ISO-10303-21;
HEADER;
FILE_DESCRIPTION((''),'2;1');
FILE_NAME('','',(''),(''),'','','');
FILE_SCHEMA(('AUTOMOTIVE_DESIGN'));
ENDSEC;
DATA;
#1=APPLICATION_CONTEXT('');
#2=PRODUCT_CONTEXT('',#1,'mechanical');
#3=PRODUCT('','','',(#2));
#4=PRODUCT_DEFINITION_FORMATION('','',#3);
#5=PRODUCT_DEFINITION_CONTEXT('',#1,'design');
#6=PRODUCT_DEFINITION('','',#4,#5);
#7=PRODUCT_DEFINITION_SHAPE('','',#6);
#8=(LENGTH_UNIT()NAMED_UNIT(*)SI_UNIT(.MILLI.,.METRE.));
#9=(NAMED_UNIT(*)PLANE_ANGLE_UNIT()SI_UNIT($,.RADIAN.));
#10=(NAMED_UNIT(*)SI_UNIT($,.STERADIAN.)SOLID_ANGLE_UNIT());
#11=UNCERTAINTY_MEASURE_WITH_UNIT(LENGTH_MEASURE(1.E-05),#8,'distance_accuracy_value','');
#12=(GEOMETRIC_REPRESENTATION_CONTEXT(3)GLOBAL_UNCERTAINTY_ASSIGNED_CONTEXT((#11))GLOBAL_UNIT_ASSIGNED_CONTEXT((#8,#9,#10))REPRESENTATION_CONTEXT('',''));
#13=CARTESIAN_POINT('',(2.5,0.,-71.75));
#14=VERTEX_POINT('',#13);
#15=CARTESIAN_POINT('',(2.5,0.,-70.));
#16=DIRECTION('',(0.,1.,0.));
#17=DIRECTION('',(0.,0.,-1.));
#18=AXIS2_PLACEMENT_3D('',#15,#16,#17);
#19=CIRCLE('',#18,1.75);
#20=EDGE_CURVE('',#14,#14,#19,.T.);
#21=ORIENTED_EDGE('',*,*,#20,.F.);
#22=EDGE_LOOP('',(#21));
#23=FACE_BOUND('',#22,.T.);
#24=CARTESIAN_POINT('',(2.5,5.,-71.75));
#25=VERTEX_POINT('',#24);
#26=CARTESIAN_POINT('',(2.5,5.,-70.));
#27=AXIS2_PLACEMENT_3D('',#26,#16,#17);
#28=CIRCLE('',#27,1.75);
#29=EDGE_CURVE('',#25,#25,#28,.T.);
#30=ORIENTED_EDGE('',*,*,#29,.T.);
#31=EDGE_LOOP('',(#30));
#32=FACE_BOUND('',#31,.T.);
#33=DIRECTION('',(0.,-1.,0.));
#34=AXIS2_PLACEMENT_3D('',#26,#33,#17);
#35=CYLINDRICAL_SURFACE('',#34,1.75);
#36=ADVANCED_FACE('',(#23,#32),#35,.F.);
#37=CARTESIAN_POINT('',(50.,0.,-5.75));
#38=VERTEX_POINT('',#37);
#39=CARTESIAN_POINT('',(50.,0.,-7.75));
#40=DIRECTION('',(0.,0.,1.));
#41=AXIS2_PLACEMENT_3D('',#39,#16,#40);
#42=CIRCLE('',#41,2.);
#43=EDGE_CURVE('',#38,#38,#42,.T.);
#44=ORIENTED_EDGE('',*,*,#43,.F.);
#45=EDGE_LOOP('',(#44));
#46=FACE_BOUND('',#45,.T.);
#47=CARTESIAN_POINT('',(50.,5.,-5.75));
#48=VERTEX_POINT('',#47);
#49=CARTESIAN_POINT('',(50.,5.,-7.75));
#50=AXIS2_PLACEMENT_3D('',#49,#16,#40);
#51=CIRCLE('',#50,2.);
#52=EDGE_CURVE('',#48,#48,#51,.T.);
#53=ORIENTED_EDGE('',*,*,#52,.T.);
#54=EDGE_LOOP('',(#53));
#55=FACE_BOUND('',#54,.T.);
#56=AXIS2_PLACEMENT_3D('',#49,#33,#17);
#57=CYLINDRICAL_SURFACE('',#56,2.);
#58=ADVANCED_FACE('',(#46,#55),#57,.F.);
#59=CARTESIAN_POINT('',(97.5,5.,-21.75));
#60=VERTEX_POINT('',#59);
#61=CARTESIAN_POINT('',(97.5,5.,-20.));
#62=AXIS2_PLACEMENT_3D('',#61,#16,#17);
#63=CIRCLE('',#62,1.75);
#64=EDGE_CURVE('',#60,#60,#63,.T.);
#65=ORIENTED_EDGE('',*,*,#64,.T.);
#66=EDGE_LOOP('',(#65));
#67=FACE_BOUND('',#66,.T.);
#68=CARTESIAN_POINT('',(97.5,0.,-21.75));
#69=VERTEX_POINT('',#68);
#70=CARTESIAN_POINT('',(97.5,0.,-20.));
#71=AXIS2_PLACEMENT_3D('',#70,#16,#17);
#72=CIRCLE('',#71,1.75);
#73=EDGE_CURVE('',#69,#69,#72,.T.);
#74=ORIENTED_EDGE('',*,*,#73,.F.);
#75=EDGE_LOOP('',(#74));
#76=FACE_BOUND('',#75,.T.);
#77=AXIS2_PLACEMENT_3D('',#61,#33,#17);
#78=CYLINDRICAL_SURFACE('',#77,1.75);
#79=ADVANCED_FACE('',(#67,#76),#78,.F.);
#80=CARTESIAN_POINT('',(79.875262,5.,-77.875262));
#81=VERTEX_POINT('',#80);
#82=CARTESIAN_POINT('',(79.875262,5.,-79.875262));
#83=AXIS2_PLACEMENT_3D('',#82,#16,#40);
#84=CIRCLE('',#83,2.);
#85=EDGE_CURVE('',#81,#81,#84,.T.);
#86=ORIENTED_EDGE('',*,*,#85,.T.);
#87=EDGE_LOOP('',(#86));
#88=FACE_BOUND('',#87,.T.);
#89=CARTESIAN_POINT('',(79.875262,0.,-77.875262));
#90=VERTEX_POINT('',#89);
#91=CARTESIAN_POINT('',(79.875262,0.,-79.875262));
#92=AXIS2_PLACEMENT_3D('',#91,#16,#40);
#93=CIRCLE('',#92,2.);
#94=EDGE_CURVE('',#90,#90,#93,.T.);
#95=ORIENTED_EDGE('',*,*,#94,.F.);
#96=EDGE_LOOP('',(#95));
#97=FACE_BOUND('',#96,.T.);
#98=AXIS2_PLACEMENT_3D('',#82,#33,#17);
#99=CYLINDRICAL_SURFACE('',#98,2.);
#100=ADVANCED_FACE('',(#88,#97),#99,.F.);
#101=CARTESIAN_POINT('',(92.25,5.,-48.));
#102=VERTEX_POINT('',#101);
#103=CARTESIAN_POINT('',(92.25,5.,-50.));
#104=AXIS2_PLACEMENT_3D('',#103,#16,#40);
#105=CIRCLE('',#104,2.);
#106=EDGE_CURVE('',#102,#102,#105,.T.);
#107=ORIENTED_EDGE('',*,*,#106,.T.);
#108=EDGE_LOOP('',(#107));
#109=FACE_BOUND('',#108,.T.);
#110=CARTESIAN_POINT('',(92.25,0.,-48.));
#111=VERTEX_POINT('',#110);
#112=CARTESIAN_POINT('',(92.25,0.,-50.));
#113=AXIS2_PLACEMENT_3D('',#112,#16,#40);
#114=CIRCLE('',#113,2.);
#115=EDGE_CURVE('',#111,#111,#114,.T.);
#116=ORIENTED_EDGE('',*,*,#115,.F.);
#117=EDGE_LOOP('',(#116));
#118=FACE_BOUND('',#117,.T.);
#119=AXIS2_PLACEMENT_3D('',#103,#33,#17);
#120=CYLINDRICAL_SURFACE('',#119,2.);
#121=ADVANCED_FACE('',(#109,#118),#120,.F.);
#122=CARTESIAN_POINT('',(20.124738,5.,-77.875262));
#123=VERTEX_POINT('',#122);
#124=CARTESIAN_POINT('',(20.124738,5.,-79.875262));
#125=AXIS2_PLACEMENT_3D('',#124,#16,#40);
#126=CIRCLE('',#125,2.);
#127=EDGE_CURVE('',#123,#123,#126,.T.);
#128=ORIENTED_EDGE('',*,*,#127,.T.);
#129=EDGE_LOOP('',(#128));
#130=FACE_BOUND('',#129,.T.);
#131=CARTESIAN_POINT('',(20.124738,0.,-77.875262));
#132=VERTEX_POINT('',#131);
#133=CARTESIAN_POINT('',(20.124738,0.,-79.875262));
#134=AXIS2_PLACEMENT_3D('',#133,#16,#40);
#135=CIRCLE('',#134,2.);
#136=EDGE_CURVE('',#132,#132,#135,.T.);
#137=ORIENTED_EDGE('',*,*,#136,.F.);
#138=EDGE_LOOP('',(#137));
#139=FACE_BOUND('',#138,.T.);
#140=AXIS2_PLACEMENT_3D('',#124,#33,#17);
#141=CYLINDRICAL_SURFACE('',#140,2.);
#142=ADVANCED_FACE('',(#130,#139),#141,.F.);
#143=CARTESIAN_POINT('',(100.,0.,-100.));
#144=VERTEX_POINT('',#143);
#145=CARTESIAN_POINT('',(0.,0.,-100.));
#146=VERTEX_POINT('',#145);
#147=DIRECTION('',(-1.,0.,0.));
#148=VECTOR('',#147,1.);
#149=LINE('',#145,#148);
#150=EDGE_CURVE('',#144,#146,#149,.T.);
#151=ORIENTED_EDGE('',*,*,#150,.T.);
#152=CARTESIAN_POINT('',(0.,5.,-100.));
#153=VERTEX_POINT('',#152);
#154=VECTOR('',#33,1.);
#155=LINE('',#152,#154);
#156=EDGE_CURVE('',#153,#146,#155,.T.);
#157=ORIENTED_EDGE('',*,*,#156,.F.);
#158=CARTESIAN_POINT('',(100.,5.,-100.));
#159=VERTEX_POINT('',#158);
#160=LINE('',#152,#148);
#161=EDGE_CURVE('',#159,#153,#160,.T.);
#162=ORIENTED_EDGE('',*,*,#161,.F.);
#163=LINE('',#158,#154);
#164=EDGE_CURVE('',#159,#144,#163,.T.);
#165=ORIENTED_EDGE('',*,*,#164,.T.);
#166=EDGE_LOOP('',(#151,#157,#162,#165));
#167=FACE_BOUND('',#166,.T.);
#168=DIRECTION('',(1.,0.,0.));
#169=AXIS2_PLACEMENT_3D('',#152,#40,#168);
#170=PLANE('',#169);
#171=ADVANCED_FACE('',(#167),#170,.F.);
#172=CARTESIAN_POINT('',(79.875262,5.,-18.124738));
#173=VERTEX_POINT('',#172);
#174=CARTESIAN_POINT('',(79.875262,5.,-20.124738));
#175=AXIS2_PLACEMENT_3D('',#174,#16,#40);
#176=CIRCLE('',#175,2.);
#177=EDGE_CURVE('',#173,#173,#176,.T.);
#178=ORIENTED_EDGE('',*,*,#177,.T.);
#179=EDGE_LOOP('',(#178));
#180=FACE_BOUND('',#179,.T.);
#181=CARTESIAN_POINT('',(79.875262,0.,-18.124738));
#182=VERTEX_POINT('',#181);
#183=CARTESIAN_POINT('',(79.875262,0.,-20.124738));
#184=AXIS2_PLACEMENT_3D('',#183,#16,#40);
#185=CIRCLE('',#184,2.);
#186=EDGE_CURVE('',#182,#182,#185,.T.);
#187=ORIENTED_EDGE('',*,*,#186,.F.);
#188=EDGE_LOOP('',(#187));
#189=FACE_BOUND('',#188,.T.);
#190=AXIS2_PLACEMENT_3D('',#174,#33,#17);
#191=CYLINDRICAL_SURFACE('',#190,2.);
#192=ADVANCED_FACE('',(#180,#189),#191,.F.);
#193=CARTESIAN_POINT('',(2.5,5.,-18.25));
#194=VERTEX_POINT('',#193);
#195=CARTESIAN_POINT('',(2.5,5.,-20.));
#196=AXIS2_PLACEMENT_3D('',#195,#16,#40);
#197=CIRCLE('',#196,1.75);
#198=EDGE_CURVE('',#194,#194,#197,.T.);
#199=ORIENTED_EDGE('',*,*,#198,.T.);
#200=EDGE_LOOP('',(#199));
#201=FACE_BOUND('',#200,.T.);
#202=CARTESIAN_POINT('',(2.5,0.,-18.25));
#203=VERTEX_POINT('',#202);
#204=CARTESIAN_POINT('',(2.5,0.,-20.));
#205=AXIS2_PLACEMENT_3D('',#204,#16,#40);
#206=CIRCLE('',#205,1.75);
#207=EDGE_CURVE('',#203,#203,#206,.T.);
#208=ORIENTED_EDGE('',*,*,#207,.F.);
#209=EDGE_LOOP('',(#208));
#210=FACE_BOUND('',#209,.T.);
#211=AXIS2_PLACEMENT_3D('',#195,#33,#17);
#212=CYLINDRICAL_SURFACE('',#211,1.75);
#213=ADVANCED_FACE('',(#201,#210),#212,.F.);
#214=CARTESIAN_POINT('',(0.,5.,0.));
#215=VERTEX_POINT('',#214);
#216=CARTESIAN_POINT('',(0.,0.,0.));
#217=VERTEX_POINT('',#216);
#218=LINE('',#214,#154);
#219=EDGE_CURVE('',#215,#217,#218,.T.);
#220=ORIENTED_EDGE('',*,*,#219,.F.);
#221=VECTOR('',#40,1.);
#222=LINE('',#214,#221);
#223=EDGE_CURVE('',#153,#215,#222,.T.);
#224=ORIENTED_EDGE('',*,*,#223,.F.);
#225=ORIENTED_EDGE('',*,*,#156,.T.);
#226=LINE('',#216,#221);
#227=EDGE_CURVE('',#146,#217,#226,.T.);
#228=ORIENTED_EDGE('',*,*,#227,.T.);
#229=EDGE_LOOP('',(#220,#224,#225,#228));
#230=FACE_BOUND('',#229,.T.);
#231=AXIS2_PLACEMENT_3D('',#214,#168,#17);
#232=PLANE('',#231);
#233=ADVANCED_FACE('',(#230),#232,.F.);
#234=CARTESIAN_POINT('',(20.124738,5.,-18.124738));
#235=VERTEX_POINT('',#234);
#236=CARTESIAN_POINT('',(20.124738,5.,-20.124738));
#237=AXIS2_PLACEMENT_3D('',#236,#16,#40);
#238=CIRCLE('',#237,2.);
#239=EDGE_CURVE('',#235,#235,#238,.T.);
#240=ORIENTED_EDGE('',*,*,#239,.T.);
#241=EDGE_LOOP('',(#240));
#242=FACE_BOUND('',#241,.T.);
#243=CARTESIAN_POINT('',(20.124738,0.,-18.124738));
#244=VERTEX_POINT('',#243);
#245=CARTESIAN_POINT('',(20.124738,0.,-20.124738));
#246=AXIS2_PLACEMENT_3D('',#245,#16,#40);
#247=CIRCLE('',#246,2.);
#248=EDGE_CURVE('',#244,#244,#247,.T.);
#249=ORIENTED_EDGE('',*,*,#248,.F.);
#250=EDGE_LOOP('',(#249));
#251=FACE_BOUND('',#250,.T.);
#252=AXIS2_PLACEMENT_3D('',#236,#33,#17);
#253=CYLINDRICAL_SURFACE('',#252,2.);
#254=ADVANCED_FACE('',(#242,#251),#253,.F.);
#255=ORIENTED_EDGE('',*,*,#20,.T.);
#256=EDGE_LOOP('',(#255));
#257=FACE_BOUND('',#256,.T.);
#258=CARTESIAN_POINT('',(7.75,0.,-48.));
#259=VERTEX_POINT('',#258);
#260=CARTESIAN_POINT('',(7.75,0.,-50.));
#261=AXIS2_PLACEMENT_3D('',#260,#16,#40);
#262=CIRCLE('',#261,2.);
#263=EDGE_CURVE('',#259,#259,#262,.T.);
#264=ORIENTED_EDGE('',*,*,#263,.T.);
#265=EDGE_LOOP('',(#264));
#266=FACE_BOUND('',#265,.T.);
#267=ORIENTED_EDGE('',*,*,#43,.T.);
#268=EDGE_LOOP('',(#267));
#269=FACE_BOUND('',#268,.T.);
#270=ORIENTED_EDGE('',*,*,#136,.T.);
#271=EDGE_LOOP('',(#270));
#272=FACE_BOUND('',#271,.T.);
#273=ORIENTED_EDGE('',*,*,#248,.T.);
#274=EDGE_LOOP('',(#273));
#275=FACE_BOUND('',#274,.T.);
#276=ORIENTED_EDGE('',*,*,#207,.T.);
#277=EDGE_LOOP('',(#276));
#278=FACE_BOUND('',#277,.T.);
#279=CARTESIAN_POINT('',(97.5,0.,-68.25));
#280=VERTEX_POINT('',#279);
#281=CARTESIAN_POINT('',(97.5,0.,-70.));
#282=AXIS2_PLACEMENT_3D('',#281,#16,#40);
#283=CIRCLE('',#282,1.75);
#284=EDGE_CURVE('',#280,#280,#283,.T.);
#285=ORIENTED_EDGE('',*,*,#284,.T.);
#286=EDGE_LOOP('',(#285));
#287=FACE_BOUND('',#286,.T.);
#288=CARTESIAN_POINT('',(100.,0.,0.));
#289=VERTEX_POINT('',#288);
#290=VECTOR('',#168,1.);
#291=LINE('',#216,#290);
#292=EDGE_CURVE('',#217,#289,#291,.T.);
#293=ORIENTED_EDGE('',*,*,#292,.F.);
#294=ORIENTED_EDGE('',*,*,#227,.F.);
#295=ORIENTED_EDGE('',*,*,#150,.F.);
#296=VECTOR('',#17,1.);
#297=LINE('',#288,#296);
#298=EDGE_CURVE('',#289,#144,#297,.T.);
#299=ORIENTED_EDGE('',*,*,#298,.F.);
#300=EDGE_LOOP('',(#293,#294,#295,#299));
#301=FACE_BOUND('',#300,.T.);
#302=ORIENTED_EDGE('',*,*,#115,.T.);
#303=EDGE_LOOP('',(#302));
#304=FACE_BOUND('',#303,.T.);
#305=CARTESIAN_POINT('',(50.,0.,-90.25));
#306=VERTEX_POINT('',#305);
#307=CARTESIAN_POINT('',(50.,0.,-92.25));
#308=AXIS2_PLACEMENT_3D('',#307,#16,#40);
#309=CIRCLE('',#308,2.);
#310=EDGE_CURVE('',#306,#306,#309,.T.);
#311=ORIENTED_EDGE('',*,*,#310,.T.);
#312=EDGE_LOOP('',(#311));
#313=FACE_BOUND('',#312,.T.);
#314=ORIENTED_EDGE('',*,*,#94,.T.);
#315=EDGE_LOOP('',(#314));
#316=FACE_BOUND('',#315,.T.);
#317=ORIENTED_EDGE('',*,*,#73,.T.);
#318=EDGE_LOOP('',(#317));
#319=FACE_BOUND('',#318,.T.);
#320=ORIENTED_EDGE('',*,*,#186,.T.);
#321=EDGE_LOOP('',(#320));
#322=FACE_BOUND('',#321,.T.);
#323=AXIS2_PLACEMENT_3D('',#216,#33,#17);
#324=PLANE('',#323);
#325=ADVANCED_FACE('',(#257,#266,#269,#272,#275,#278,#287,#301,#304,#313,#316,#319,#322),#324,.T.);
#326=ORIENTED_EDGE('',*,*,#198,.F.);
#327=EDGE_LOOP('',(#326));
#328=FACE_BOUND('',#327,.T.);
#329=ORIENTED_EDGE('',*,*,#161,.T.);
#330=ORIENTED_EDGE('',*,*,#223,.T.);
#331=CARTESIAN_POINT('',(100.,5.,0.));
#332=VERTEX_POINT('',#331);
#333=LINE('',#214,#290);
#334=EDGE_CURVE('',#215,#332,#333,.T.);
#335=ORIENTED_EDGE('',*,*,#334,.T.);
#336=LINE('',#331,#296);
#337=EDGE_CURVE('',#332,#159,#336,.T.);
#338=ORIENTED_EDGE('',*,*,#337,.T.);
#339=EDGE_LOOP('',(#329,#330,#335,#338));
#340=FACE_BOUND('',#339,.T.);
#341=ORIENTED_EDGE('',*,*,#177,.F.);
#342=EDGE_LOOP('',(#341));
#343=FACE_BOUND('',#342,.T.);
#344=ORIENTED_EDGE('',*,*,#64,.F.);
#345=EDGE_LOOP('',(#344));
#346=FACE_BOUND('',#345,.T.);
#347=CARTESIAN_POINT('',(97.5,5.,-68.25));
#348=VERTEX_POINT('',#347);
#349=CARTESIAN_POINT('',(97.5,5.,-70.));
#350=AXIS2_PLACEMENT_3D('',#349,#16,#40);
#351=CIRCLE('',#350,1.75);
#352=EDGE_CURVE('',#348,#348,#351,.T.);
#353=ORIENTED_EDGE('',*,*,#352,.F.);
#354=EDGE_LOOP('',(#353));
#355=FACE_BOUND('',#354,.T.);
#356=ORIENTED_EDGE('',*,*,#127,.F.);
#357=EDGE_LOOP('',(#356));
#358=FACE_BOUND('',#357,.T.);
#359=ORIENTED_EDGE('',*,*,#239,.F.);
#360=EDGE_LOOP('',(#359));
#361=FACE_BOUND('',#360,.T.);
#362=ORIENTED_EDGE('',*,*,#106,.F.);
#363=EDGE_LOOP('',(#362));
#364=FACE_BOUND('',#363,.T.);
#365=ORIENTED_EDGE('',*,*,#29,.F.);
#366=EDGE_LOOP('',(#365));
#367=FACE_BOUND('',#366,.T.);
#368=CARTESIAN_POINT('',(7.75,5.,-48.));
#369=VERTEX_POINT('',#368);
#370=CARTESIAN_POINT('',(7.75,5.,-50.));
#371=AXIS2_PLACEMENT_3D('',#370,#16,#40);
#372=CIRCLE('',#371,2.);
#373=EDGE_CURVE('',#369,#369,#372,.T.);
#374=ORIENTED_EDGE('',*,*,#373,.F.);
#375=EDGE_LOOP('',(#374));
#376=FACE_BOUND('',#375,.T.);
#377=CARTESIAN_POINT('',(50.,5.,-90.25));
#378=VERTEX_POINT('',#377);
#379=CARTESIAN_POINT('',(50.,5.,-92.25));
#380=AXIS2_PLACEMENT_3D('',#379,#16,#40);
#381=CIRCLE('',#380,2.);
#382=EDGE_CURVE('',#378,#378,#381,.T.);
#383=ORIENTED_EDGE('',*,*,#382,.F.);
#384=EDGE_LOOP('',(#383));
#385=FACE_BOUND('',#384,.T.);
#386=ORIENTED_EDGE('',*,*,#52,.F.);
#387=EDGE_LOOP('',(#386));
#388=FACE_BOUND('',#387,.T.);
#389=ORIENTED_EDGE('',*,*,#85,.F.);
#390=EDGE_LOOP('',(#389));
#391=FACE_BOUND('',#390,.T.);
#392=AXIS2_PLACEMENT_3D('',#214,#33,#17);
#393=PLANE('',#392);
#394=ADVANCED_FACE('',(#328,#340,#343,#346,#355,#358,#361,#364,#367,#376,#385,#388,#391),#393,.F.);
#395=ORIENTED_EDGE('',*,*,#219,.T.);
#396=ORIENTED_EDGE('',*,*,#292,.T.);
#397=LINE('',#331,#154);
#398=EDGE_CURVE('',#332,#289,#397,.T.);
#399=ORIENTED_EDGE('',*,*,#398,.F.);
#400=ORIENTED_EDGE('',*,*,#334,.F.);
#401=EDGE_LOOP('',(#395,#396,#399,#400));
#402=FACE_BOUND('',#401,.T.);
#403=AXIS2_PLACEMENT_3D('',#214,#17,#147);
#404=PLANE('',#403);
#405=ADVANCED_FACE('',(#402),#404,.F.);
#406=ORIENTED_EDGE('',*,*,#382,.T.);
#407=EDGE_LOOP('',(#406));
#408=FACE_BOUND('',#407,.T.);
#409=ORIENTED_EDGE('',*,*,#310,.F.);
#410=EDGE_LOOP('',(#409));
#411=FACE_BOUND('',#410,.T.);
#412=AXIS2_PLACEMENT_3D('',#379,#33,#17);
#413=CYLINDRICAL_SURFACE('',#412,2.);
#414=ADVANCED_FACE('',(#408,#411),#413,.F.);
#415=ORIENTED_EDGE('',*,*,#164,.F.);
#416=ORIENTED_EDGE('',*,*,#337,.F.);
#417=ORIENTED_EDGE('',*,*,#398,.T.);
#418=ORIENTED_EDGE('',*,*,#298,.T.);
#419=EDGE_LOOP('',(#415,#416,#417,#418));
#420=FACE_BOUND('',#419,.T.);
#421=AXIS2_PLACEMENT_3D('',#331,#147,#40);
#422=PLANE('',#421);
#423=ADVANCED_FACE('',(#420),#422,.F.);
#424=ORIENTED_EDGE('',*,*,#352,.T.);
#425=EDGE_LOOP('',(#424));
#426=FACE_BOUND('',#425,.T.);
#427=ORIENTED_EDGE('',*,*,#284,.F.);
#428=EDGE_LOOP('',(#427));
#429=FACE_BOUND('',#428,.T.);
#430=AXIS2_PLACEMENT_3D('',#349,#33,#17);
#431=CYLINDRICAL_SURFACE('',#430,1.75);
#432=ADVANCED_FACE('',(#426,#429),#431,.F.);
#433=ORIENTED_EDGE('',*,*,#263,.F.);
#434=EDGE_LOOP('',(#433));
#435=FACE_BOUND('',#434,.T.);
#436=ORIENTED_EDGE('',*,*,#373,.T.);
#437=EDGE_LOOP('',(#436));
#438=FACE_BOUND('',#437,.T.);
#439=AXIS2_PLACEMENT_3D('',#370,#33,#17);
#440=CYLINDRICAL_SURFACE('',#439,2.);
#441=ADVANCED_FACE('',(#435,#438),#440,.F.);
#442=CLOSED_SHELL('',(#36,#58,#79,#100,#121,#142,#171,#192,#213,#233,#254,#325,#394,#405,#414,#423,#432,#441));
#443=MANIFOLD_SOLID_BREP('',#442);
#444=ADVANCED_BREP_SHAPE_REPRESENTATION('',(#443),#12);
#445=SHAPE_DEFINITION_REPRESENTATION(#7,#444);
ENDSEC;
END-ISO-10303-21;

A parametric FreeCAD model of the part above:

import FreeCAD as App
import Part
import Sketcher
from FreeCAD import Vector
Q = App.Units.Quantity


def add_polygon(sketch, points):
    """Adds a closed chain of lines whose ends are joined by coincident constraints."""
    first, n = sketch.GeometryCount, len(points)
    for a, b in zip(points, points[1:] + points[:1]):
        sketch.addGeometry(Part.LineSegment(App.Vector(*a, 0), App.Vector(*b, 0)), False)
    for i in range(n):
        sketch.addConstraint(Sketcher.Constraint("Coincident", first + i, 2, first + (i + 1) % n, 1))

doc = App.newDocument("Part")
body = doc.addObject("PartDesign::Body", "Body")

# Sketch on XZ plane
sketch1 = doc.addObject("Sketcher::SketchObject", "Sketch")
body.addObject(sketch1)
sketch1.AttachmentSupport = (doc.XZ_Plane, [""])
sketch1.MapMode = "FlatFace"
add_polygon(sketch1, [(0, -100), (0, 0), (100, 0), (100, -100)])  # lines 0-3
sketch1.addGeometry(Part.Circle(Vector(2.5, -20, 0), Vector(0, 0, 1), 1.8), False)  # 4
sketch1.addGeometry(Part.Circle(Vector(20.1, -20.1, 0), Vector(0, 0, 1), 2), False)  # 5
sketch1.addGeometry(Part.Circle(Vector(50, -7.8, 0), Vector(0, 0, 1), 2), False)  # 6
sketch1.addGeometry(Part.Circle(Vector(79.9, -20.1, 0), Vector(0, 0, 1), 2), False)  # 7
sketch1.addGeometry(Part.Circle(Vector(97.5, -20, 0), Vector(0, 0, 1), 1.8), False)  # 8
sketch1.addGeometry(Part.Circle(Vector(7.8, -50, 0), Vector(0, 0, 1), 2), False)  # 9
sketch1.addGeometry(Part.Circle(Vector(2.5, -70, 0), Vector(0, 0, 1), 1.8), False)  # 10
sketch1.addGeometry(Part.Circle(Vector(20.1, -79.9, 0), Vector(0, 0, 1), 2), False)  # 11
sketch1.addGeometry(Part.Circle(Vector(50, -92.2, 0), Vector(0, 0, 1), 2), False)  # 12
sketch1.addGeometry(Part.Circle(Vector(92.2, -50, 0), Vector(0, 0, 1), 2), False)  # 13
sketch1.addGeometry(Part.Circle(Vector(97.5, -70, 0), Vector(0, 0, 1), 1.8), False)  # 14
sketch1.addGeometry(Part.Circle(Vector(79.9, -79.9, 0), Vector(0, 0, 1), 2), False)  # 15
sketch1.addConstraint([
    Sketcher.Constraint("Vertical", 0),
    Sketcher.Constraint("Horizontal", 1),
    Sketcher.Constraint("Vertical", 2),
    Sketcher.Constraint("Horizontal", 3),
    Sketcher.Constraint("Coincident", 0, 2, -1, 1),
    Sketcher.Constraint("Equal", 5, 6),
    Sketcher.Constraint("Equal", 6, 7),
    Sketcher.Constraint("Equal", 4, 8),
    Sketcher.Constraint("Equal", 7, 9),
    Sketcher.Constraint("Equal", 8, 10),
    Sketcher.Constraint("Equal", 9, 11),
    Sketcher.Constraint("Equal", 11, 12),
    Sketcher.Constraint("Equal", 12, 13),
    Sketcher.Constraint("Equal", 10, 14),
    Sketcher.Constraint("Equal", 13, 15),
    Sketcher.Constraint("Horizontal", 5, 3, 7, 3),
    Sketcher.Constraint("Horizontal", 4, 3, 8, 3),
    Sketcher.Constraint("Horizontal", 9, 3, 13, 3),
    Sketcher.Constraint("Horizontal", 10, 3, 14, 3),
    Sketcher.Constraint("Horizontal", 11, 3, 15, 3),
    Sketcher.Constraint("Vertical", 4, 3, 10, 3),
    Sketcher.Constraint("Vertical", 5, 3, 11, 3),
    Sketcher.Constraint("Vertical", 6, 3, 12, 3),
    Sketcher.Constraint("Vertical", 8, 3, 14, 3),
    Sketcher.Constraint("Vertical", 7, 3, 15, 3),
    Sketcher.Constraint("Equal", 3, 0),
    Sketcher.Constraint("Diameter", 5, Q("4 mm")),
    Sketcher.Constraint("Diameter", 4, Q("3.5 mm")),
    Sketcher.Constraint("DistanceX", 1, 1, 1, 2, Q("100 mm")),
    Sketcher.Constraint("DistanceY", 4, 3, -1, 1, Q("20 mm")),
    Sketcher.Constraint("DistanceX", -1, 1, 6, 3, Q("50 mm")),
    Sketcher.Constraint("DistanceY", 9, 3, -1, 1, Q("50 mm")),
    Sketcher.Constraint("DistanceY", 10, 3, -1, 1, Q("70 mm")),
    Sketcher.Constraint("DistanceX", 4, 3, 8, 3, Q("95 mm")),
    Sketcher.Constraint("DistanceX", -1, 1, 4, 3, Q("2.5 mm")),
    Sketcher.Constraint("DistanceY", 6, 3, -1, 1, Q("7.75 mm")),
    Sketcher.Constraint("DistanceX", -1, 1, 9, 3, Q("7.75 mm")),
    Sketcher.Constraint("DistanceY", 12, 3, -1, 1, Q("92.25 mm")),
    Sketcher.Constraint("DistanceX", -1, 1, 13, 3, Q("92.25 mm")),
    Sketcher.Constraint("DistanceX", -1, 1, 5, 3, Q("20.124738 mm")),
    Sketcher.Constraint("DistanceY", 5, 3, -1, 1, Q("20.124738 mm")),
    Sketcher.Constraint("DistanceX", -1, 1, 7, 3, Q("79.875262 mm")),
    Sketcher.Constraint("DistanceY", 11, 3, -1, 1, Q("79.875262 mm")),
])
pad1 = doc.addObject("PartDesign::Pad", "Pad")
body.addObject(pad1)
pad1.Profile = sketch1
pad1.Length = 5
pad1.Reversed = True

doc.recompute()
